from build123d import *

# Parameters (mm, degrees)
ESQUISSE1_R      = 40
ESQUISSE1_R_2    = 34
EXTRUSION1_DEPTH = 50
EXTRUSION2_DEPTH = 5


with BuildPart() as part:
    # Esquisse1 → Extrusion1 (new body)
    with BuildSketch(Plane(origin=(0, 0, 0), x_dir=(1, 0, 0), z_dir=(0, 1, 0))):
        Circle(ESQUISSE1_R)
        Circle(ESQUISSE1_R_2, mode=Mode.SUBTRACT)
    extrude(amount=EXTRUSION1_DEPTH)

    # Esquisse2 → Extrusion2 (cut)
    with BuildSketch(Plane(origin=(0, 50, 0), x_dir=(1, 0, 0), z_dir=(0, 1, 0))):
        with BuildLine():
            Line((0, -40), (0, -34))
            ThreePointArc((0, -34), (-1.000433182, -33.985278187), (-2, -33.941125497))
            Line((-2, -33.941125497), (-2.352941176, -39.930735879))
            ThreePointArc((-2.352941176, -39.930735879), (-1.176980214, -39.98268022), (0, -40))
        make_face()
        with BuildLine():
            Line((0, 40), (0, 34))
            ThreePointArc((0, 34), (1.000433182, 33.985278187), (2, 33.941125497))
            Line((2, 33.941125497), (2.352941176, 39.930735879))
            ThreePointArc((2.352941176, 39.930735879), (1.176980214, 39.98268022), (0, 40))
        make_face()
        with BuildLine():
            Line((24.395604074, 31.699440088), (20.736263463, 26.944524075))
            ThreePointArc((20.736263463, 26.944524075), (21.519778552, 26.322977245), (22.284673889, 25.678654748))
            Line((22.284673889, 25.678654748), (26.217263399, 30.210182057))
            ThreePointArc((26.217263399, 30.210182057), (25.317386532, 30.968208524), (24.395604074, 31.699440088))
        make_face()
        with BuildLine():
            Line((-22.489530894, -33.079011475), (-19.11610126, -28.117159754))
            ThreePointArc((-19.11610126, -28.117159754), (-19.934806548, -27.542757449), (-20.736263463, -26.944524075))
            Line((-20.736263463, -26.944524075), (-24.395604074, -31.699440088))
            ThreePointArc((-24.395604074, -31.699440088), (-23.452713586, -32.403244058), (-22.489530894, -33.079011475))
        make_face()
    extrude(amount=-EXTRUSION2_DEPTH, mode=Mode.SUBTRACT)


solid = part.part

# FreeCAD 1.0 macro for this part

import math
import FreeCAD as App
import Part
import Sketcher
from FreeCAD import Vector

doc = App.newDocument("Part")
body = doc.addObject("PartDesign::Body", "Body")

# Sketch on XZ plane
sketch1 = doc.addObject("Sketcher::SketchObject", "Sketch")
body.addObject(sketch1)
sketch1.AttachmentSupport = (doc.XZ_Plane, [""])
sketch1.MapMode = "FlatFace"
sketch1.addGeometry(Part.Circle(Vector(0, 0, 0), Vector(0, 0, 1), 40), False)
sketch1.addGeometry(Part.Circle(Vector(0, 0, 0), Vector(0, 0, 1), 34), False)
sketch1.addConstraint(Sketcher.Constraint("Coincident", 0, 3, -1, 1))
sketch1.addConstraint(Sketcher.Constraint("Coincident", 1, 3, -1, 1))
sketch1.addConstraint(Sketcher.Constraint("Diameter", 0, 80.0))
sketch1.addConstraint(Sketcher.Constraint("Diameter", 1, 68.0))
pad1 = doc.addObject("PartDesign::Pad", "Pad")
body.addObject(pad1)
pad1.Profile = sketch1
pad1.Length = 50
pad1.Reversed = True

# Sketch on XZ plane
sketch2 = doc.addObject("Sketcher::SketchObject", "Sketch001")
body.addObject(sketch2)
sketch2.AttachmentSupport = (doc.XZ_Plane, [""])
sketch2.MapMode = "FlatFace"
sketch2.AttachmentOffset = App.Placement(Vector(0, 0, -50), App.Rotation())
sketch2.addGeometry(Part.LineSegment(Vector(0, 40, 0), Vector(0, 34, 0)), False)
sketch2.addGeometry(Part.ArcOfCircle(Part.Circle(Vector(0, 0, 0), Vector(0, 0, 1), 34), math.radians(90), math.radians(93.372287)), False)
sketch2.addGeometry(Part.LineSegment(Vector(-2, 33.941125, 0), Vector(-2.352941, 39.930736, 0)), False)
sketch2.addGeometry(Part.ArcOfCircle(Part.Circle(Vector(0, 0, 0), Vector(0, 0, 1), 40), math.radians(90), math.radians(93.372287)), False)
sketch2.addGeometry(Part.LineSegment(Vector(0, -40, 0), Vector(0, -34, 0)), False)
sketch2.addGeometry(Part.ArcOfCircle(Part.Circle(Vector(0, 0, 0), Vector(0, 0, 1), 34), math.radians(-90), math.radians(-86.627713)), False)
sketch2.addGeometry(Part.LineSegment(Vector(2, -33.941125, 0), Vector(2.352941, -39.930736, 0)), False)
sketch2.addGeometry(Part.ArcOfCircle(Part.Circle(Vector(0, 0, 0), Vector(0, 0, 1), 40), math.radians(-90), math.radians(-86.627713)), False)
sketch2.addGeometry(Part.LineSegment(Vector(24.395604, -31.69944, 0), Vector(20.736263, -26.944524, 0)), False)
sketch2.addGeometry(Part.ArcOfCircle(Part.Circle(Vector(-0.000001, 0.000001, 0), Vector(0, 0, 1), 34.000002), math.radians(-52.418443), math.radians(-49.047617)), False)
sketch2.addGeometry(Part.LineSegment(Vector(22.284674, -25.678655, 0), Vector(26.217263, -30.210182, 0)), False)
sketch2.addGeometry(Part.ArcOfCircle(Part.Circle(Vector(-0.000001, 0.000001, 0), Vector(0, 0, 1), 40.000001), math.radians(-52.418443), math.radians(-49.047617)), False)
sketch2.addGeometry(Part.LineSegment(Vector(-22.489531, 33.079011, 0), Vector(-19.116101, 28.11716, 0)), False)
sketch2.addGeometry(Part.ArcOfCircle(Part.Circle(Vector(0, -0.000001, 0), Vector(0, 0, 1), 34.000001), math.radians(124.210731), math.radians(127.581557)), False)
sketch2.addGeometry(Part.LineSegment(Vector(-20.736263, 26.944524, 0), Vector(-24.395604, 31.69944, 0)), False)
sketch2.addGeometry(Part.ArcOfCircle(Part.Circle(Vector(0, 0, 0), Vector(0, 0, 1), 39.999999), math.radians(124.210731), math.radians(127.581557)), False)
sketch2.addConstraint(Sketcher.Constraint("Coincident", 0, 2, 1, 1))
sketch2.addConstraint(Sketcher.Constraint("Coincident", 1, 2, 2, 1))
sketch2.addConstraint(Sketcher.Constraint("Coincident", 2, 2, 3, 2))
sketch2.addConstraint(Sketcher.Constraint("Coincident", 3, 1, 0, 1))
sketch2.addConstraint(Sketcher.Constraint("Coincident", 4, 2, 5, 1))
sketch2.addConstraint(Sketcher.Constraint("Coincident", 5, 2, 6, 1))
sketch2.addConstraint(Sketcher.Constraint("Coincident", 6, 2, 7, 2))
sketch2.addConstraint(Sketcher.Constraint("Coincident", 7, 1, 4, 1))
sketch2.addConstraint(Sketcher.Constraint("Coincident", 8, 2, 9, 1))
sketch2.addConstraint(Sketcher.Constraint("Coincident", 9, 2, 10, 1))
sketch2.addConstraint(Sketcher.Constraint("Coincident", 10, 2, 11, 2))
sketch2.addConstraint(Sketcher.Constraint("Coincident", 11, 1, 8, 1))
sketch2.addConstraint(Sketcher.Constraint("Coincident", 12, 2, 13, 1))
sketch2.addConstraint(Sketcher.Constraint("Coincident", 13, 2, 14, 1))
sketch2.addConstraint(Sketcher.Constraint("Coincident", 14, 2, 15, 2))
sketch2.addConstraint(Sketcher.Constraint("Coincident", 15, 1, 12, 1))
sketch2.addConstraint(Sketcher.Constraint("Vertical", 0))
sketch2.addConstraint(Sketcher.Constraint("Vertical", 4))
sketch2.addConstraint(Sketcher.Constraint("Coincident", 1, 3, -1, 1))
sketch2.addConstraint(Sketcher.Constraint("Coincident", 3, 3, -1, 1))
sketch2.addConstraint(Sketcher.Constraint("Coincident", 5, 3, -1, 1))
sketch2.addConstraint(Sketcher.Constraint("Coincident", 7, 3, -1, 1))
sketch2.addConstraint(Sketcher.Constraint("Coincident", 9, 3, -1, 1))
sketch2.addConstraint(Sketcher.Constraint("Coincident", 11, 3, -1, 1))
sketch2.addConstraint(Sketcher.Constraint("Coincident", 13, 3, -1, 1))
sketch2.addConstraint(Sketcher.Constraint("Coincident", 15, 3, -1, 1))
sketch2.addConstraint(Sketcher.Constraint("Equal", 1, 5))
sketch2.addConstraint(Sketcher.Constraint("Equal", 3, 7))
sketch2.addConstraint(Sketcher.Constraint("Equal", 5, 9))
sketch2.addConstraint(Sketcher.Constraint("Equal", 7, 11))
sketch2.addConstraint(Sketcher.Constraint("Equal", 9, 13))
sketch2.addConstraint(Sketcher.Constraint("Equal", 11, 15))
sketch2.addConstraint(Sketcher.Constraint("PointOnObject", 0, 2, -2))
sketch2.addConstraint(Sketcher.Constraint("PointOnObject", 4, 2, -2))
sketch2.addConstraint(Sketcher.Constraint("Parallel", 2, 6))
sketch2.addConstraint(Sketcher.Constraint("Parallel", 8, 14))
sketch2.addConstraint(Sketcher.Constraint("Radius", 1, 34.0))
sketch2.addConstraint(Sketcher.Constraint("Radius", 3, 40.0))
sketch2.addConstraint(Sketcher.Constraint("DistanceX", 1, 2, -1, 1, 2.0))
sketch2.addConstraint(Sketcher.Constraint("DistanceX", -1, 1, 5, 2, 2.0))
sketch2.addConstraint(Sketcher.Constraint("DistanceX", 8, 2, 10, 2, 5.481))
sketch2.addConstraint(Sketcher.Constraint("DistanceX", 12, 2, -1, 1, 19.116101))
sketch2.addConstraint(Sketcher.Constraint("DistanceY", 5, 2, 8, 2, 6.996601))
sketch2.addConstraint(Sketcher.Constraint("DistanceY", 13, 2, 1, 2, 6.996601))
sketch2.addConstraint(Sketcher.Constraint("DistanceX", 2, 2, -1, 1, 2.352941))
sketch2.addConstraint(Sketcher.Constraint("DistanceY", 11, 1, -1, 1, 31.69944))
sketch2.addConstraint(Sketcher.Constraint("DistanceX", 15, 1, -1, 1, 22.489531))
sketch2.addConstraint(Sketcher.Constraint("DistanceX", 8, 2, 9, 2, 1.54841))
pocket1 = doc.addObject("PartDesign::Pocket", "Pocket")
body.addObject(pocket1)
pocket1.Profile = sketch2
pocket1.Length = 5
pocket1.Reversed = True

doc.recompute()
